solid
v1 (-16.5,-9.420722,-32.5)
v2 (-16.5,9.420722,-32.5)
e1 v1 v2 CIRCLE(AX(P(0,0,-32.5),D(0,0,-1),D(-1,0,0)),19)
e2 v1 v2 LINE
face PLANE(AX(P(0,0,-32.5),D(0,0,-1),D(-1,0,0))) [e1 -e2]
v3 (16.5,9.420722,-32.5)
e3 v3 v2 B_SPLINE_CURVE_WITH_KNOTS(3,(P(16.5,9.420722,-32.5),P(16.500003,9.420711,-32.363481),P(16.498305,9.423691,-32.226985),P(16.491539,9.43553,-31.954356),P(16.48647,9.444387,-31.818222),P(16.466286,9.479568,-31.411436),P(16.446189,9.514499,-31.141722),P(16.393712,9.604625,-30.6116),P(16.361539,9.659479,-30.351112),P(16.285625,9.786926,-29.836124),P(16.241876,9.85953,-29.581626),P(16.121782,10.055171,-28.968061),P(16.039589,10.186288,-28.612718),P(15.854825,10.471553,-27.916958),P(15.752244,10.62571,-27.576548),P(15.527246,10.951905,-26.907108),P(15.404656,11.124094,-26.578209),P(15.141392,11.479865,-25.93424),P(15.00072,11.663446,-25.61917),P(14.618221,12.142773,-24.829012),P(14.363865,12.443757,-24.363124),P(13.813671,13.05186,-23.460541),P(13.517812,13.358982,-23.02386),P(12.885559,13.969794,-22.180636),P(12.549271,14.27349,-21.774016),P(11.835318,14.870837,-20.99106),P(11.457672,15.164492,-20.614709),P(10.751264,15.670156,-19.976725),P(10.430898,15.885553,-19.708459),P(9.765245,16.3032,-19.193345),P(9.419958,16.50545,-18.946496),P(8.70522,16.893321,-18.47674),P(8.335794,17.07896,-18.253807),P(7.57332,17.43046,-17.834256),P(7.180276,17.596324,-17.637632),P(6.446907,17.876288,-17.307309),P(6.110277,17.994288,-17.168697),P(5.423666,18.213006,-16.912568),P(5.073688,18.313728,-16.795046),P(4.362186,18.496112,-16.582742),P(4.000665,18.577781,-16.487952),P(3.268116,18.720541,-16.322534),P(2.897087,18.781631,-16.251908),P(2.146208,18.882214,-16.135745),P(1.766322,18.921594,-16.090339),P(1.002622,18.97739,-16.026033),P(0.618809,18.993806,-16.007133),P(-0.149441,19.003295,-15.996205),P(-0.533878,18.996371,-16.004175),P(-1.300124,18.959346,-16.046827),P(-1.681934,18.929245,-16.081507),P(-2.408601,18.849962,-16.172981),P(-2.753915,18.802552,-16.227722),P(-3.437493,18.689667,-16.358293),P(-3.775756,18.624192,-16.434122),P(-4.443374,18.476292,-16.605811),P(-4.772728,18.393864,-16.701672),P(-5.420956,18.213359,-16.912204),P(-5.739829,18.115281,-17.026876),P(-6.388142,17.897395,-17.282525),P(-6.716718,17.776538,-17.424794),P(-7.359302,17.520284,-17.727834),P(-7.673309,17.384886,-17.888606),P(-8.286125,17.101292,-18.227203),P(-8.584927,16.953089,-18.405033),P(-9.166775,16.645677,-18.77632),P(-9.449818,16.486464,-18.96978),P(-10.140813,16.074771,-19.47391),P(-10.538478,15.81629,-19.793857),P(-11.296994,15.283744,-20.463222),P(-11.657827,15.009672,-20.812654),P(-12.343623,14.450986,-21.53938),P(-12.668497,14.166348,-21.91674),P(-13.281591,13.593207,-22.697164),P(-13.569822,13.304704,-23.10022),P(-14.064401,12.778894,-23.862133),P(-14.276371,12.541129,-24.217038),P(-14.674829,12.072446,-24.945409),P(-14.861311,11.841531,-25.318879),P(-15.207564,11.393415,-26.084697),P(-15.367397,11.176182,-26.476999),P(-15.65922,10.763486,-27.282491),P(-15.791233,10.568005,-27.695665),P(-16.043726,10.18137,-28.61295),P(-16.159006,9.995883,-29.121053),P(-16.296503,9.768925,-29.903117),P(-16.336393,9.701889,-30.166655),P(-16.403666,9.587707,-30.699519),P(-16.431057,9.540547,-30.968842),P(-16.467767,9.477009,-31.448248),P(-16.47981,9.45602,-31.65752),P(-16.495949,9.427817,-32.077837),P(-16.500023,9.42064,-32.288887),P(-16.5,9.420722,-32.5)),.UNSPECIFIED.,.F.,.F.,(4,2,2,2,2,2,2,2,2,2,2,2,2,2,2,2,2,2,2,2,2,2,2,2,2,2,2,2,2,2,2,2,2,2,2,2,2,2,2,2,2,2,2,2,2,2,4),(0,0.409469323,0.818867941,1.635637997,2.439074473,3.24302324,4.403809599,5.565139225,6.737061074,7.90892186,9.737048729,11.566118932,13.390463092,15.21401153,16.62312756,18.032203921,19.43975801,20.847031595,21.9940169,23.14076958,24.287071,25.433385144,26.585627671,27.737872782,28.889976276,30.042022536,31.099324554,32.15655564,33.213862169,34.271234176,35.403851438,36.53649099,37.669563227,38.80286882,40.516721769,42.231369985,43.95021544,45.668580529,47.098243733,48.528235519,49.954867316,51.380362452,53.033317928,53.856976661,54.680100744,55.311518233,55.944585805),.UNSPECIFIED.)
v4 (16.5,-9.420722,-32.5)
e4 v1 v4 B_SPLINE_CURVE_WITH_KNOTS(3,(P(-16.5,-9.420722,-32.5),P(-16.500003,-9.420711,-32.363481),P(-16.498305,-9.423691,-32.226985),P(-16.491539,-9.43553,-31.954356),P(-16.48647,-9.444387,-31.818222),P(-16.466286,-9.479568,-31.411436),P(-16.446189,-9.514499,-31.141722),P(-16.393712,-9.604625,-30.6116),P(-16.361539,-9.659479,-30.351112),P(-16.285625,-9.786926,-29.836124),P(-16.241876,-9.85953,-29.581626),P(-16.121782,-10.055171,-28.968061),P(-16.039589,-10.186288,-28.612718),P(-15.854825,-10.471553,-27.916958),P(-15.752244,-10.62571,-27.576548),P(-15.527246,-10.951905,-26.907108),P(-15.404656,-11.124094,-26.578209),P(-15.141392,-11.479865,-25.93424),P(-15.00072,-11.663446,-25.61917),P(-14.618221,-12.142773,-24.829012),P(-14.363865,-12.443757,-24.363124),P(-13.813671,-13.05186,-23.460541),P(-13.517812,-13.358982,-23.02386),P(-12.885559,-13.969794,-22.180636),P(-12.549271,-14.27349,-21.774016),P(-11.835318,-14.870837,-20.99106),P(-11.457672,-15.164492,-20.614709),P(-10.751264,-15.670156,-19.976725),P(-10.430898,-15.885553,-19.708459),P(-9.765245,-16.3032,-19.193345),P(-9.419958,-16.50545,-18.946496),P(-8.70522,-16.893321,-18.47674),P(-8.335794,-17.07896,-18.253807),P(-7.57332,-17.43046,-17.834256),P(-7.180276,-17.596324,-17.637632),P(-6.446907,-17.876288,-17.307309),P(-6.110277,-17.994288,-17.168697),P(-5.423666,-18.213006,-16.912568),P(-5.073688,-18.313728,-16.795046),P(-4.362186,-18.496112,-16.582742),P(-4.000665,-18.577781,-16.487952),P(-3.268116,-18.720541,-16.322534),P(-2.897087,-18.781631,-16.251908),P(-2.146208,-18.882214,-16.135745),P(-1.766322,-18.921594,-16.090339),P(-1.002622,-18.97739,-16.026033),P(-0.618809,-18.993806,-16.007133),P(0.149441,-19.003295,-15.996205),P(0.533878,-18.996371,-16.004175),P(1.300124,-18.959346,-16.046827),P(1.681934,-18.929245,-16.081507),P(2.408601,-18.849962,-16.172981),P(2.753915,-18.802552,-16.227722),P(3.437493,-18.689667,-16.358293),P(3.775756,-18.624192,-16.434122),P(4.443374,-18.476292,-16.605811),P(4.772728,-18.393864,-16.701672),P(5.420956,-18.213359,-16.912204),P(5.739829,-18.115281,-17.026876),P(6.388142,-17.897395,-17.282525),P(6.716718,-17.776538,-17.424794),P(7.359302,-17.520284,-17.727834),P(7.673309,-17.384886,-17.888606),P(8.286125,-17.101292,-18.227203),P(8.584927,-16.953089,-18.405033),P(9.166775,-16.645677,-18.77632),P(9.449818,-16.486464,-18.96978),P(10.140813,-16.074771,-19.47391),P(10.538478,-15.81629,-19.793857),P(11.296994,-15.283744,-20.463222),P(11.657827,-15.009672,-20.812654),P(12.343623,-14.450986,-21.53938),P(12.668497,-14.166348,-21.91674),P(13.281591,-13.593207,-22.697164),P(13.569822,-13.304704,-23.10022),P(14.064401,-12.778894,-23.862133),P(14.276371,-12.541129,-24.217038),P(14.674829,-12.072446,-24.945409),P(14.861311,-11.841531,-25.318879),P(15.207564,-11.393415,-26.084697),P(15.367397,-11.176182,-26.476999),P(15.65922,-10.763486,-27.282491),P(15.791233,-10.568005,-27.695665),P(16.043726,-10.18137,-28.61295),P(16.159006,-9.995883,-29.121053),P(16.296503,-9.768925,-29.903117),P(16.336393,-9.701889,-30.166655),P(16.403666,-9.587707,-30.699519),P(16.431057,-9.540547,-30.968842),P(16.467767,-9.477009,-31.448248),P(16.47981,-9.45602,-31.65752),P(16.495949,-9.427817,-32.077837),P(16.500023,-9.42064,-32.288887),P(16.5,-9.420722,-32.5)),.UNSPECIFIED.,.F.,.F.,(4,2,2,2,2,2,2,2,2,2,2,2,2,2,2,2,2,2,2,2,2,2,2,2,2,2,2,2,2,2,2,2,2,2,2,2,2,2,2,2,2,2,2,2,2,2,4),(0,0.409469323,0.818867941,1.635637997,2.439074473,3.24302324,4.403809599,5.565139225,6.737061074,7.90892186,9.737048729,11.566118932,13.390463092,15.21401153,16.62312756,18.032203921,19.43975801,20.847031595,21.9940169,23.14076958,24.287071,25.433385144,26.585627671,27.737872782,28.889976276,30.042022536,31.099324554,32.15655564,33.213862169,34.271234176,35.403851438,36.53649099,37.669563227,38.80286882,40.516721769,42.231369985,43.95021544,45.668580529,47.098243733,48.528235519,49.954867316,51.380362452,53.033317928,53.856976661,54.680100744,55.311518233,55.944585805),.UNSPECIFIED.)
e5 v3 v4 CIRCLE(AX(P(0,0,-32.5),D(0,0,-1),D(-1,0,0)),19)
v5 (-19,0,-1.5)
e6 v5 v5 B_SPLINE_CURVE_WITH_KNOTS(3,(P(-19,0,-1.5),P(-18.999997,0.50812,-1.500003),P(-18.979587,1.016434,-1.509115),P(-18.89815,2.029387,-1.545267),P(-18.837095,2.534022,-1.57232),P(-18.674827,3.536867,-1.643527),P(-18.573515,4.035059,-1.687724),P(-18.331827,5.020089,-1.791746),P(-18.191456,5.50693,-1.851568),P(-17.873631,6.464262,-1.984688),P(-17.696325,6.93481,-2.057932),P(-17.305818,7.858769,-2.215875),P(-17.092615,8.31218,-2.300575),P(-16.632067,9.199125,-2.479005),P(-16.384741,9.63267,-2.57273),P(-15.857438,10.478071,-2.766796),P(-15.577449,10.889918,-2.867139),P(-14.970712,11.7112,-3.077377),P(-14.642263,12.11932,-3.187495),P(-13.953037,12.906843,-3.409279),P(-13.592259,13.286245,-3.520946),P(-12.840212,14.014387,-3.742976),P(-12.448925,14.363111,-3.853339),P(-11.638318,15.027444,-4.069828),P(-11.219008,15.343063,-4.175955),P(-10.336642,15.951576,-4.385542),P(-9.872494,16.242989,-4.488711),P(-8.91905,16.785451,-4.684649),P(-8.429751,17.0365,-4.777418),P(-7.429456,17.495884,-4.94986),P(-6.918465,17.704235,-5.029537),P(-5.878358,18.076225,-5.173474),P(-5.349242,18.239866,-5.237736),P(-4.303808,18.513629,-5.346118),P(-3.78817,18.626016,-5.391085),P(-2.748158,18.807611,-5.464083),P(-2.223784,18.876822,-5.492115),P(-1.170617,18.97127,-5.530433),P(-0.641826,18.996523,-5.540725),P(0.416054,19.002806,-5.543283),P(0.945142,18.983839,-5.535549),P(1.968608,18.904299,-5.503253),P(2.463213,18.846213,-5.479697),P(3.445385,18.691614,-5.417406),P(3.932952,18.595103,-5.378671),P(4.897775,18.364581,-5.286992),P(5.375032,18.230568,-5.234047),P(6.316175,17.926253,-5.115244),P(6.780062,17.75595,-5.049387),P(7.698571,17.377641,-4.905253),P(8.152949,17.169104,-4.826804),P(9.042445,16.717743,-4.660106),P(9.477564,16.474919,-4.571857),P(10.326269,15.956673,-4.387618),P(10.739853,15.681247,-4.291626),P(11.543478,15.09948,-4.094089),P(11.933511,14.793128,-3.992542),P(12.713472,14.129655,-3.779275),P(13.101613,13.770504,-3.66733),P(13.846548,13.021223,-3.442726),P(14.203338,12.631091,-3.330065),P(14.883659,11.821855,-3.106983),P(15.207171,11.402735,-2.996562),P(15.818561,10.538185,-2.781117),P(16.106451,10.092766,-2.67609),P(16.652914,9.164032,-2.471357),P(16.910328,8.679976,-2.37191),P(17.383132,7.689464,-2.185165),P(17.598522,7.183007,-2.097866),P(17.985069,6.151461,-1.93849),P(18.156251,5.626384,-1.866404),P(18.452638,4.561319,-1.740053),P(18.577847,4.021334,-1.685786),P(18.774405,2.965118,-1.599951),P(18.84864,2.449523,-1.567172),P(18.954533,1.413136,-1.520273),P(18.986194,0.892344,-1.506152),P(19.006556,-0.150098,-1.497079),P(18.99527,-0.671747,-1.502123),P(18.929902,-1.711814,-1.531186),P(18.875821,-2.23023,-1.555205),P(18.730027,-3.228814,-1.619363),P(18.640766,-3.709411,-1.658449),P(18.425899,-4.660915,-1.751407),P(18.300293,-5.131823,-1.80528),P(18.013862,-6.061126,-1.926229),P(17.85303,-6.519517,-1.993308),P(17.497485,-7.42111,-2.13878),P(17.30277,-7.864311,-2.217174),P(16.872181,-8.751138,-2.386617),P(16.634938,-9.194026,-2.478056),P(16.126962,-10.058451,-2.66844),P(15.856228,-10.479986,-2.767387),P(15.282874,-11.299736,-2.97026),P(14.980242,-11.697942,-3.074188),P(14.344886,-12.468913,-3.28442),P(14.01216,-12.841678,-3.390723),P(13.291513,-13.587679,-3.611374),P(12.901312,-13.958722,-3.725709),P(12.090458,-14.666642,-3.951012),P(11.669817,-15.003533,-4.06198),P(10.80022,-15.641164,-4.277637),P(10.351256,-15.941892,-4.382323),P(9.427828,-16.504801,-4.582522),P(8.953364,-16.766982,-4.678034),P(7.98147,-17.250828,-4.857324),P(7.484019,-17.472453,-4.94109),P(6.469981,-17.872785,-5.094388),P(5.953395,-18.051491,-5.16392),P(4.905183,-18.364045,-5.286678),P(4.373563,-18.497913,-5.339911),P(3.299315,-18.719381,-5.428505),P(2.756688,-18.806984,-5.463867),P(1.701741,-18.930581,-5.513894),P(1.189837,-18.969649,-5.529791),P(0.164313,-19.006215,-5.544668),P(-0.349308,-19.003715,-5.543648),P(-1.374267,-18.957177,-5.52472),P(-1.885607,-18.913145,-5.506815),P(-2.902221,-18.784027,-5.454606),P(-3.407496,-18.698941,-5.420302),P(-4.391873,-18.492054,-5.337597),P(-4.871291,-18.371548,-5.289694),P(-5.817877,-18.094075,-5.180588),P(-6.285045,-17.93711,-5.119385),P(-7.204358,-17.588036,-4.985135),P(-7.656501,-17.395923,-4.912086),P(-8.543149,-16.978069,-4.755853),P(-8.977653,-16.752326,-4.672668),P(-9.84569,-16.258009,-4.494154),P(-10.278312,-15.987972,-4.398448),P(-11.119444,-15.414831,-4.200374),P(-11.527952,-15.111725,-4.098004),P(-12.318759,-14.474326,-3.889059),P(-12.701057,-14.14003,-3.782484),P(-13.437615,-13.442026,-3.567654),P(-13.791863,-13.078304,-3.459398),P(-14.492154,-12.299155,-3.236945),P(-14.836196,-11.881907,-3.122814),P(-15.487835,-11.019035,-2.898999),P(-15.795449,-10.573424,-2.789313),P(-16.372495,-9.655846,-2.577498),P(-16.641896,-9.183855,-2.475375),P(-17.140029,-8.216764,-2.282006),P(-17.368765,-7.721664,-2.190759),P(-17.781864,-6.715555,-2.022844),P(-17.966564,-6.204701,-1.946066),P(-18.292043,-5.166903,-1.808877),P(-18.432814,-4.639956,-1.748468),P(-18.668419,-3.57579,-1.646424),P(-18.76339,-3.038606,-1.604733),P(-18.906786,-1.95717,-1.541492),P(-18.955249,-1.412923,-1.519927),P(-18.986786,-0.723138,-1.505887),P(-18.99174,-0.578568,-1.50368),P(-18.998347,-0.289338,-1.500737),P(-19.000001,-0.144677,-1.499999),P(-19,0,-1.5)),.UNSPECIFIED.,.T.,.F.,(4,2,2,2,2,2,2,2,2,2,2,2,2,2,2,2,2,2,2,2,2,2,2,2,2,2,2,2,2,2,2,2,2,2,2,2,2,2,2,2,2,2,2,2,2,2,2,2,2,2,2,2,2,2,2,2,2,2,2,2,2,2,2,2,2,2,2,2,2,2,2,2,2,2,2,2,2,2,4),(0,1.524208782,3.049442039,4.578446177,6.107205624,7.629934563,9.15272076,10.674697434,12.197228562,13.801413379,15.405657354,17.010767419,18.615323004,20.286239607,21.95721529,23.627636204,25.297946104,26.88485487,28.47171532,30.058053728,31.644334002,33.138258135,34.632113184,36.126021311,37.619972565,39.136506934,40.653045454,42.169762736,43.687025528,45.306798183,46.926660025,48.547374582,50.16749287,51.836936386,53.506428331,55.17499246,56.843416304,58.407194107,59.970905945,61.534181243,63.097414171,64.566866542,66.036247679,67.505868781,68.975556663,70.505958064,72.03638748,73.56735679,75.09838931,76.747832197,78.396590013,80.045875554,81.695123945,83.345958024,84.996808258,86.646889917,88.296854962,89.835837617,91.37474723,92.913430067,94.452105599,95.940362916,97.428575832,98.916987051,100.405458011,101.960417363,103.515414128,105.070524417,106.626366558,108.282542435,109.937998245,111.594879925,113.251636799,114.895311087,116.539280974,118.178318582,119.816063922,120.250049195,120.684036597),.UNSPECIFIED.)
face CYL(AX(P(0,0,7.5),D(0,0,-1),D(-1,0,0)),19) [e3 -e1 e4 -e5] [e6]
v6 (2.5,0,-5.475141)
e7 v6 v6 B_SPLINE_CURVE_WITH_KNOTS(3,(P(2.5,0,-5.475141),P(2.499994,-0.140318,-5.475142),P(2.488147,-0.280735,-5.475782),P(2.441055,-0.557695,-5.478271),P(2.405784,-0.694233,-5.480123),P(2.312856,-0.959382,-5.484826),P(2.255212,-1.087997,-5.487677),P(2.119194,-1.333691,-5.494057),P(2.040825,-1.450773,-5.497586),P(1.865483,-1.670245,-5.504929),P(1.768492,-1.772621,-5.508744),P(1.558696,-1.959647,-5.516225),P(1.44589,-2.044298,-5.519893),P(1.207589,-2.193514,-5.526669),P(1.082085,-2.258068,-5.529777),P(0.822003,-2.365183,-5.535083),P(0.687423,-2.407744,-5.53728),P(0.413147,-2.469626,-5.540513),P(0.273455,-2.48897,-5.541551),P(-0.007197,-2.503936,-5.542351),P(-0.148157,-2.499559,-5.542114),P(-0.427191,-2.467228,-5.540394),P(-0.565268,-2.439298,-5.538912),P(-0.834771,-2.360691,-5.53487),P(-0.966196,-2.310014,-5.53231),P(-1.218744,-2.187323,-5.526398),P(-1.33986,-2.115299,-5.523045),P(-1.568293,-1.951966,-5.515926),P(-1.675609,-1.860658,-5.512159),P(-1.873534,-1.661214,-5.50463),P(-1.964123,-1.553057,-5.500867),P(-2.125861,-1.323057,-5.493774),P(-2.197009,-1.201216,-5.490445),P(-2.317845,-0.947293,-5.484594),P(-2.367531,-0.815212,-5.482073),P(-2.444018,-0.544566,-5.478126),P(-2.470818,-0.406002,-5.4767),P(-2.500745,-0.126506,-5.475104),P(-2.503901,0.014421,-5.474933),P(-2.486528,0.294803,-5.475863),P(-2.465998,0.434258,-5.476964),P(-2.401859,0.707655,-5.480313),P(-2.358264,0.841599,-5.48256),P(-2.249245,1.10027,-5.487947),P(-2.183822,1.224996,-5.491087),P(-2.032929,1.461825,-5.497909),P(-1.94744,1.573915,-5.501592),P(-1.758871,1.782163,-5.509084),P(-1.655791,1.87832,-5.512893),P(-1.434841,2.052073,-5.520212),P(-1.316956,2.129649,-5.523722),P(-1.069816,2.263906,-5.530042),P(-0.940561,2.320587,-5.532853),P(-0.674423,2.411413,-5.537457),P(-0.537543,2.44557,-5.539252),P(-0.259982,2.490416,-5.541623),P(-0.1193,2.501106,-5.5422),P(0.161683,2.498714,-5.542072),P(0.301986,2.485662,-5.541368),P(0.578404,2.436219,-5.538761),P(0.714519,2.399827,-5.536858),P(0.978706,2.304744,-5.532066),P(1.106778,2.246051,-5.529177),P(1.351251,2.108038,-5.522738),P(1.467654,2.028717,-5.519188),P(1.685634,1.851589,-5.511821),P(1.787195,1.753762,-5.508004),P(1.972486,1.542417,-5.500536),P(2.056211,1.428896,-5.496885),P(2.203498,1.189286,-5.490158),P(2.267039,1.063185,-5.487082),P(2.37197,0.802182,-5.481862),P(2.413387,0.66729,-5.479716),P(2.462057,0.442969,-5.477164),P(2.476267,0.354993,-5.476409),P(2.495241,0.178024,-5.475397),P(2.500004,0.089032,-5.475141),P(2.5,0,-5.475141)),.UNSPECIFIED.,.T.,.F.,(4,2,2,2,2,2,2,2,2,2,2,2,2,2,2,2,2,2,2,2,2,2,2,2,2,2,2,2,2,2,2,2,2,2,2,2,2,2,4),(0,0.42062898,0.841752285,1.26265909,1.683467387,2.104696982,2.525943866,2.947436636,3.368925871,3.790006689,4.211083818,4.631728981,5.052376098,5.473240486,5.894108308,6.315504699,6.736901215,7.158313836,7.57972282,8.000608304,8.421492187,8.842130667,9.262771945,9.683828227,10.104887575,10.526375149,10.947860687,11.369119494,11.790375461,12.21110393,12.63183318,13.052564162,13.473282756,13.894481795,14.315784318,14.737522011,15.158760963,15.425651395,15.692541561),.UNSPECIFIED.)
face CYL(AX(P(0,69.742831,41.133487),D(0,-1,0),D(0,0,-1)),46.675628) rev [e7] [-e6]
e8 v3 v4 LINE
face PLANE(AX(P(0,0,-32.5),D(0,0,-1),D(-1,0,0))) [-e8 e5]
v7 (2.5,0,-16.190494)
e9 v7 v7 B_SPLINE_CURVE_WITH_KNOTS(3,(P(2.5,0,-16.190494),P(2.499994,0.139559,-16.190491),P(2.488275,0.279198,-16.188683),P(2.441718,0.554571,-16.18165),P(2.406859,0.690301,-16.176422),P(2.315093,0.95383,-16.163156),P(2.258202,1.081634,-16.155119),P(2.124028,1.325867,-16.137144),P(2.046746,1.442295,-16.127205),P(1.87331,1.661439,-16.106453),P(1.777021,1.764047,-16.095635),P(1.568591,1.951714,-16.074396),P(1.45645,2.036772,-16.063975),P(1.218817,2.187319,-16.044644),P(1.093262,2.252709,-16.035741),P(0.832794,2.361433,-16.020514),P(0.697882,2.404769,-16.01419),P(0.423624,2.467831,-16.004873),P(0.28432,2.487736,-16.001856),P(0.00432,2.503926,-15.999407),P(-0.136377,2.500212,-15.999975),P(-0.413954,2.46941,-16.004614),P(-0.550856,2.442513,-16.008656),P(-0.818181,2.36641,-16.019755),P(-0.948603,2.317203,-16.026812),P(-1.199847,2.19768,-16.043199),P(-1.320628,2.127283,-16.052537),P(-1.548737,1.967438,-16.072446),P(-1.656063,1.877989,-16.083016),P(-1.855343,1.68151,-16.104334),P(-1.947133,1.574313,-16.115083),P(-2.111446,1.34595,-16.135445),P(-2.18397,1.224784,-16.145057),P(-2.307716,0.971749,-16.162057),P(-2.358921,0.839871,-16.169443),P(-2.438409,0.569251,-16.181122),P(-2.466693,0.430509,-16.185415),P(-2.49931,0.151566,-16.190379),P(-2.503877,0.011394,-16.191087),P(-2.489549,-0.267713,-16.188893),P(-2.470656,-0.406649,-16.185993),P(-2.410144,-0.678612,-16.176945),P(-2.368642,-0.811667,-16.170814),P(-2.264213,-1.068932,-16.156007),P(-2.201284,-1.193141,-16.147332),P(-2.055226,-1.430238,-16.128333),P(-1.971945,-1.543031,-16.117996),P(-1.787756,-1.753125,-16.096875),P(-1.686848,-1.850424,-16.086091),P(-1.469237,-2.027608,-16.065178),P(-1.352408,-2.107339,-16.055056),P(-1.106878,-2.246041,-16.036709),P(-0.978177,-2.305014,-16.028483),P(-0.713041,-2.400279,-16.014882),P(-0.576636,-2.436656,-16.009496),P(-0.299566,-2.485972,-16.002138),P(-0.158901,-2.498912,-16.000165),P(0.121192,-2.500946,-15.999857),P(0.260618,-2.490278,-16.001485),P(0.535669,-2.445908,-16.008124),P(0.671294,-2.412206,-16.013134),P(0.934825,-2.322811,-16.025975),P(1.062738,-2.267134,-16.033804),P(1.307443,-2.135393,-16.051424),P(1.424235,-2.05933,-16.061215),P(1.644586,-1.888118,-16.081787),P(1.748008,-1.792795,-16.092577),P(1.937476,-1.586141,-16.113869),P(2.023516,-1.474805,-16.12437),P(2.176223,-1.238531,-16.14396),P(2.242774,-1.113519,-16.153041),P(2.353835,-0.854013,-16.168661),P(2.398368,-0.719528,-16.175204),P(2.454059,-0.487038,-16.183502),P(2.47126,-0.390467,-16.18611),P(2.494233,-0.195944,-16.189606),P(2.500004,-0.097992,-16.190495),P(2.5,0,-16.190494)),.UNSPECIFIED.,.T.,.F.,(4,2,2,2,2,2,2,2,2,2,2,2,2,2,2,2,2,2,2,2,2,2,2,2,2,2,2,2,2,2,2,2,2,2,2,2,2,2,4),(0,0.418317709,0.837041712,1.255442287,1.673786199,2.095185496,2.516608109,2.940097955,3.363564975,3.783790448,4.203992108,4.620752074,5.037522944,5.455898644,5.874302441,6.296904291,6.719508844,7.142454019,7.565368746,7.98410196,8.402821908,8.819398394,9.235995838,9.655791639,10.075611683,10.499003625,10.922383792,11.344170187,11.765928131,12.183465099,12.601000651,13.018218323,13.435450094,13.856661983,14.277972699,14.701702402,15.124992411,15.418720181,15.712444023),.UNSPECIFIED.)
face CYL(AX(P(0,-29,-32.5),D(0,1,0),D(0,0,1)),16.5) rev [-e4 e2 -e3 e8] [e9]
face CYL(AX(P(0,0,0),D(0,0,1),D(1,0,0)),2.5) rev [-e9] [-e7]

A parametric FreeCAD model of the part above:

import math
import FreeCAD as App
import Part
import Sketcher

V = App.Vector

doc = App.newDocument("Part")
body = doc.addObject("PartDesign::Body", "Body")

sketch1 = doc.addObject("Sketcher::SketchObject", "Sketch")
body.addObject(sketch1)
sketch1.AttachmentSupport = (doc.XY_Plane, [""])
sketch1.MapMode = "FlatFace"
sketch1.addGeometry(Part.Circle(V(0, 0, 0), V(0, 0, 1), 19), False)
sketch1.addConstraint(Sketcher.Constraint("Coincident", 0, 3, -1, 1))
sketch1.addConstraint(Sketcher.Constraint("Diameter", 0, 38.0))
pad1 = doc.addObject("PartDesign::Pad", "Pad")
body.addObject(pad1)
pad1.Profile = sketch1
pad1.Length = 15
pad1.Midplane = True

sketch2 = doc.addObject("Sketcher::SketchObject", "Sketch001")
body.addObject(sketch2)
sketch2.AttachmentSupport = (doc.XZ_Plane, [""])
sketch2.MapMode = "FlatFace"
sketch2.addGeometry(Part.LineSegment(V(-19, -2, 0), V(-99, 34, 0)), False)
sketch2.addGeometry(Part.LineSegment(V(-99, 34, 0), V(-99, 211, 0)), False)
sketch2.addGeometry(Part.LineSegment(V(-99, 211, 0), V(99, 211, 0)), False)
sketch2.addGeometry(Part.LineSegment(V(99, 211, 0), V(99, 34, 0)), False)
sketch2.addGeometry(Part.LineSegment(V(99, 34, 0), V(19, -2, 0)), False)
sketch2.addGeometry(Part.ArcOfCircle(Part.Circle(V(0, 41, 0), V(0, 0, 1), 47), math.radians(-114), math.radians(-66)), False)
sketch2.addConstraint(Sketcher.Constraint("Coincident", 0, 2, 1, 1))
sketch2.addConstraint(Sketcher.Constraint("Coincident", 1, 2, 2, 1))
sketch2.addConstraint(Sketcher.Constraint("Coincident", 2, 2, 3, 1))
sketch2.addConstraint(Sketcher.Constraint("Coincident", 3, 2, 4, 1))
sketch2.addConstraint(Sketcher.Constraint("Tangent", 4, 2, 5, 2))
sketch2.addConstraint(Sketcher.Constraint("Tangent", 5, 1, 0, 1))
sketch2.addConstraint(Sketcher.Constraint("Vertical", 1))
sketch2.addConstraint(Sketcher.Constraint("Horizontal", 2))
sketch2.addConstraint(Sketcher.Constraint("Vertical", 3))
sketch2.addConstraint(Sketcher.Constraint("Symmetric", 0, 2, 3, 2, -2))
sketch2.addConstraint(Sketcher.Constraint("PointOnObject", 5, 3, -2))
sketch2.addConstraint(Sketcher.Constraint("DistanceX", -1, 1, 4, 2, 19.0))
sketch2.addConstraint(Sketcher.Constraint("DistanceY", 4, 2, -1, 1, 1.5))
sketch2.addConstraint(Sketcher.Constraint("Radius", 5, 46.675628))
sketch2.addConstraint(Sketcher.Constraint("DistanceX", 2, 1, 2, 2, 198.945523))
sketch2.addConstraint(Sketcher.Constraint("DistanceY", 1, 1, 1, 2, 176.204994))
pocket1 = doc.addObject("PartDesign::Pocket", "Pocket")
body.addObject(pocket1)
pocket1.Profile = sketch2
pocket1.Type = "ThroughAll"
pocket1.Midplane = True

sketch3 = doc.addObject("Sketcher::SketchObject", "Sketch002")
body.addObject(sketch3)
sketch3.AttachmentSupport = (doc.XY_Plane, [""])
sketch3.MapMode = "FlatFace"
sketch3.AttachmentOffset = App.Placement(V(0, 0, -7.5), App.Rotation())
sketch3.addGeometry(Part.Circle(V(0, 0, 0), V(0, 0, 1), 19), False)
sketch3.addConstraint(Sketcher.Constraint("Coincident", 0, 3, -1, 1))
sketch3.addConstraint(Sketcher.Constraint("Diameter", 0, 38.0))
pad2 = doc.addObject("PartDesign::Pad", "Pad001")
body.addObject(pad2)
pad2.Profile = sketch3
pad2.Length = 25
pad2.Reversed = True

sketch4 = doc.addObject("Sketcher::SketchObject", "Sketch003")
body.addObject(sketch4)
sketch4.AttachmentSupport = (doc.XZ_Plane, [""])
sketch4.MapMode = "FlatFace"
sketch4.addGeometry(Part.Circle(V(0, -32, 0), V(0, 0, 1), 16), False)
sketch4.addConstraint(Sketcher.Constraint("PointOnObject", 0, 3, -2))
sketch4.addConstraint(Sketcher.Constraint("Diameter", 0, 33.0))
sketch4.addConstraint(Sketcher.Constraint("DistanceY", 0, 3, -1, 1, 32.5))
pocket2 = doc.addObject("PartDesign::Pocket", "Pocket001")
body.addObject(pocket2)
pocket2.Profile = sketch4
pocket2.Length = 58
pocket2.Midplane = True

sketch5 = doc.addObject("Sketcher::SketchObject", "Sketch004")
body.addObject(sketch5)
sketch5.AttachmentSupport = (doc.XY_Plane, [""])
sketch5.MapMode = "FlatFace"
sketch5.addGeometry(Part.Circle(V(0, 0, 0), V(0, 0, 1), 2.5), False)
sketch5.addConstraint(Sketcher.Constraint("Coincident", 0, 3, -1, 1))
sketch5.addConstraint(Sketcher.Constraint("Diameter", 0, 5.0))
doc.recompute()
hole = doc.addObject("PartDesign::Hole", "Hole")
body.addObject(hole)
hole.Profile = sketch5
hole.ThreadType = "None"
hole.Diameter = 5
hole.DepthType = "ThroughAll"

doc.recompute()
